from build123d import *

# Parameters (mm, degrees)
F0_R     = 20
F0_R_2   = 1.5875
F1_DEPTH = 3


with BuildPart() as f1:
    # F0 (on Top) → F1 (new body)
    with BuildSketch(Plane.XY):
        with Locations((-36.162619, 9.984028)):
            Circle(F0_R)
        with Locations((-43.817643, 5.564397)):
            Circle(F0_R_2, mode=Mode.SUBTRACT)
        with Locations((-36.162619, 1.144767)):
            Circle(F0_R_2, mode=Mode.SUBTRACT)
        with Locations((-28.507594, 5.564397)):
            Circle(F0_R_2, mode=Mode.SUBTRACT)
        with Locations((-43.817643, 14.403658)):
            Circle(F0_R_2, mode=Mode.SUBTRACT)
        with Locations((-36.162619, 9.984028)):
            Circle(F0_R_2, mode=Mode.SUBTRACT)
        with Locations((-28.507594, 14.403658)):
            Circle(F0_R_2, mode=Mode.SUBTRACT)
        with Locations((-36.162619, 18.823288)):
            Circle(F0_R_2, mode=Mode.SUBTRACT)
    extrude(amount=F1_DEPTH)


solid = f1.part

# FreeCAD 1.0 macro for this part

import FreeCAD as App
import Part
import Sketcher
from FreeCAD import Vector
Q = App.Units.Quantity

doc = App.newDocument("Part")
body = doc.addObject("PartDesign::Body", "Body")

# Sketch on XY plane
sketch1 = body.newObject("Sketcher::SketchObject", "Sketch")
sketch1.AttachmentSupport = (doc.getObject("XY_Plane"), [""])
sketch1.MapMode = "FlatFace"
sketch1.addGeometry([
    Part.Circle(Vector(-36.162619, 9.984028, 0), Vector(0, 0, 1), 20),  # 0
    Part.Circle(Vector(-36.162619, 1.144767, 0), Vector(0, 0, 1), 1.5875),  # 1
    Part.Circle(Vector(-43.817643, 5.564397, 0), Vector(0, 0, 1), 1.5875),  # 2
    Part.Circle(Vector(-28.507594, 5.564397, 0), Vector(0, 0, 1), 1.5875),  # 3
    Part.Circle(Vector(-43.817643, 14.403658, 0), Vector(0, 0, 1), 1.5875),  # 4
    Part.Circle(Vector(-36.162619, 9.984028, 0), Vector(0, 0, 1), 1.5875),  # 5
    Part.Circle(Vector(-36.162619, 18.823288, 0), Vector(0, 0, 1), 1.5875),  # 6
    Part.Circle(Vector(-28.507594, 14.403658, 0), Vector(0, 0, 1), 1.5875),  # 7
], False)
sketch1.addConstraint([
    Sketcher.Constraint("Coincident", 5, 3, 0, 3),
    Sketcher.Constraint("Equal", 1, 2),
    Sketcher.Constraint("Equal", 2, 3),
    Sketcher.Constraint("Equal", 3, 4),
    Sketcher.Constraint("Equal", 4, 5),
    Sketcher.Constraint("Equal", 5, 6),
    Sketcher.Constraint("Equal", 6, 7),
    Sketcher.Constraint("Horizontal", 2, 3, 3, 3),
    Sketcher.Constraint("Horizontal", 4, 3, 7, 3),
    Sketcher.Constraint("Vertical", 0, 3, 1, 3),
    Sketcher.Constraint("Vertical", 2, 3, 4, 3),
    Sketcher.Constraint("Vertical", 5, 3, 6, 3),
    Sketcher.Constraint("Vertical", 3, 3, 7, 3),
    Sketcher.Constraint("Diameter", 0, Q("40 mm")),
    Sketcher.Constraint("Diameter", 1, Q("3.175 mm")),
    Sketcher.Constraint("DistanceX", 0, 3, -1, 1, Q("36.162619 mm")),
    Sketcher.Constraint("DistanceY", -1, 1, 6, 3, Q("18.823288 mm")),
    Sketcher.Constraint("DistanceY", 1, 3, 0, 3, Q("8.839261 mm")),
    Sketcher.Constraint("DistanceY", 1, 3, 2, 3, Q("4.41963 mm")),
    Sketcher.Constraint("DistanceX", 2, 3, 3, 3, Q("15.310049 mm")),
    Sketcher.Constraint("DistanceY", 0, 3, 4, 3, Q("4.41963 mm")),
    Sketcher.Constraint("DistanceY", 0, 3, 6, 3, Q("8.83926 mm")),
    Sketcher.Constraint("DistanceX", 2, 3, -1, 1, Q("43.817643 mm")),
])
pad1 = body.newObject("PartDesign::Pad", "Pad")
pad1.Profile = sketch1
pad1.Length = 3

doc.recompute()
